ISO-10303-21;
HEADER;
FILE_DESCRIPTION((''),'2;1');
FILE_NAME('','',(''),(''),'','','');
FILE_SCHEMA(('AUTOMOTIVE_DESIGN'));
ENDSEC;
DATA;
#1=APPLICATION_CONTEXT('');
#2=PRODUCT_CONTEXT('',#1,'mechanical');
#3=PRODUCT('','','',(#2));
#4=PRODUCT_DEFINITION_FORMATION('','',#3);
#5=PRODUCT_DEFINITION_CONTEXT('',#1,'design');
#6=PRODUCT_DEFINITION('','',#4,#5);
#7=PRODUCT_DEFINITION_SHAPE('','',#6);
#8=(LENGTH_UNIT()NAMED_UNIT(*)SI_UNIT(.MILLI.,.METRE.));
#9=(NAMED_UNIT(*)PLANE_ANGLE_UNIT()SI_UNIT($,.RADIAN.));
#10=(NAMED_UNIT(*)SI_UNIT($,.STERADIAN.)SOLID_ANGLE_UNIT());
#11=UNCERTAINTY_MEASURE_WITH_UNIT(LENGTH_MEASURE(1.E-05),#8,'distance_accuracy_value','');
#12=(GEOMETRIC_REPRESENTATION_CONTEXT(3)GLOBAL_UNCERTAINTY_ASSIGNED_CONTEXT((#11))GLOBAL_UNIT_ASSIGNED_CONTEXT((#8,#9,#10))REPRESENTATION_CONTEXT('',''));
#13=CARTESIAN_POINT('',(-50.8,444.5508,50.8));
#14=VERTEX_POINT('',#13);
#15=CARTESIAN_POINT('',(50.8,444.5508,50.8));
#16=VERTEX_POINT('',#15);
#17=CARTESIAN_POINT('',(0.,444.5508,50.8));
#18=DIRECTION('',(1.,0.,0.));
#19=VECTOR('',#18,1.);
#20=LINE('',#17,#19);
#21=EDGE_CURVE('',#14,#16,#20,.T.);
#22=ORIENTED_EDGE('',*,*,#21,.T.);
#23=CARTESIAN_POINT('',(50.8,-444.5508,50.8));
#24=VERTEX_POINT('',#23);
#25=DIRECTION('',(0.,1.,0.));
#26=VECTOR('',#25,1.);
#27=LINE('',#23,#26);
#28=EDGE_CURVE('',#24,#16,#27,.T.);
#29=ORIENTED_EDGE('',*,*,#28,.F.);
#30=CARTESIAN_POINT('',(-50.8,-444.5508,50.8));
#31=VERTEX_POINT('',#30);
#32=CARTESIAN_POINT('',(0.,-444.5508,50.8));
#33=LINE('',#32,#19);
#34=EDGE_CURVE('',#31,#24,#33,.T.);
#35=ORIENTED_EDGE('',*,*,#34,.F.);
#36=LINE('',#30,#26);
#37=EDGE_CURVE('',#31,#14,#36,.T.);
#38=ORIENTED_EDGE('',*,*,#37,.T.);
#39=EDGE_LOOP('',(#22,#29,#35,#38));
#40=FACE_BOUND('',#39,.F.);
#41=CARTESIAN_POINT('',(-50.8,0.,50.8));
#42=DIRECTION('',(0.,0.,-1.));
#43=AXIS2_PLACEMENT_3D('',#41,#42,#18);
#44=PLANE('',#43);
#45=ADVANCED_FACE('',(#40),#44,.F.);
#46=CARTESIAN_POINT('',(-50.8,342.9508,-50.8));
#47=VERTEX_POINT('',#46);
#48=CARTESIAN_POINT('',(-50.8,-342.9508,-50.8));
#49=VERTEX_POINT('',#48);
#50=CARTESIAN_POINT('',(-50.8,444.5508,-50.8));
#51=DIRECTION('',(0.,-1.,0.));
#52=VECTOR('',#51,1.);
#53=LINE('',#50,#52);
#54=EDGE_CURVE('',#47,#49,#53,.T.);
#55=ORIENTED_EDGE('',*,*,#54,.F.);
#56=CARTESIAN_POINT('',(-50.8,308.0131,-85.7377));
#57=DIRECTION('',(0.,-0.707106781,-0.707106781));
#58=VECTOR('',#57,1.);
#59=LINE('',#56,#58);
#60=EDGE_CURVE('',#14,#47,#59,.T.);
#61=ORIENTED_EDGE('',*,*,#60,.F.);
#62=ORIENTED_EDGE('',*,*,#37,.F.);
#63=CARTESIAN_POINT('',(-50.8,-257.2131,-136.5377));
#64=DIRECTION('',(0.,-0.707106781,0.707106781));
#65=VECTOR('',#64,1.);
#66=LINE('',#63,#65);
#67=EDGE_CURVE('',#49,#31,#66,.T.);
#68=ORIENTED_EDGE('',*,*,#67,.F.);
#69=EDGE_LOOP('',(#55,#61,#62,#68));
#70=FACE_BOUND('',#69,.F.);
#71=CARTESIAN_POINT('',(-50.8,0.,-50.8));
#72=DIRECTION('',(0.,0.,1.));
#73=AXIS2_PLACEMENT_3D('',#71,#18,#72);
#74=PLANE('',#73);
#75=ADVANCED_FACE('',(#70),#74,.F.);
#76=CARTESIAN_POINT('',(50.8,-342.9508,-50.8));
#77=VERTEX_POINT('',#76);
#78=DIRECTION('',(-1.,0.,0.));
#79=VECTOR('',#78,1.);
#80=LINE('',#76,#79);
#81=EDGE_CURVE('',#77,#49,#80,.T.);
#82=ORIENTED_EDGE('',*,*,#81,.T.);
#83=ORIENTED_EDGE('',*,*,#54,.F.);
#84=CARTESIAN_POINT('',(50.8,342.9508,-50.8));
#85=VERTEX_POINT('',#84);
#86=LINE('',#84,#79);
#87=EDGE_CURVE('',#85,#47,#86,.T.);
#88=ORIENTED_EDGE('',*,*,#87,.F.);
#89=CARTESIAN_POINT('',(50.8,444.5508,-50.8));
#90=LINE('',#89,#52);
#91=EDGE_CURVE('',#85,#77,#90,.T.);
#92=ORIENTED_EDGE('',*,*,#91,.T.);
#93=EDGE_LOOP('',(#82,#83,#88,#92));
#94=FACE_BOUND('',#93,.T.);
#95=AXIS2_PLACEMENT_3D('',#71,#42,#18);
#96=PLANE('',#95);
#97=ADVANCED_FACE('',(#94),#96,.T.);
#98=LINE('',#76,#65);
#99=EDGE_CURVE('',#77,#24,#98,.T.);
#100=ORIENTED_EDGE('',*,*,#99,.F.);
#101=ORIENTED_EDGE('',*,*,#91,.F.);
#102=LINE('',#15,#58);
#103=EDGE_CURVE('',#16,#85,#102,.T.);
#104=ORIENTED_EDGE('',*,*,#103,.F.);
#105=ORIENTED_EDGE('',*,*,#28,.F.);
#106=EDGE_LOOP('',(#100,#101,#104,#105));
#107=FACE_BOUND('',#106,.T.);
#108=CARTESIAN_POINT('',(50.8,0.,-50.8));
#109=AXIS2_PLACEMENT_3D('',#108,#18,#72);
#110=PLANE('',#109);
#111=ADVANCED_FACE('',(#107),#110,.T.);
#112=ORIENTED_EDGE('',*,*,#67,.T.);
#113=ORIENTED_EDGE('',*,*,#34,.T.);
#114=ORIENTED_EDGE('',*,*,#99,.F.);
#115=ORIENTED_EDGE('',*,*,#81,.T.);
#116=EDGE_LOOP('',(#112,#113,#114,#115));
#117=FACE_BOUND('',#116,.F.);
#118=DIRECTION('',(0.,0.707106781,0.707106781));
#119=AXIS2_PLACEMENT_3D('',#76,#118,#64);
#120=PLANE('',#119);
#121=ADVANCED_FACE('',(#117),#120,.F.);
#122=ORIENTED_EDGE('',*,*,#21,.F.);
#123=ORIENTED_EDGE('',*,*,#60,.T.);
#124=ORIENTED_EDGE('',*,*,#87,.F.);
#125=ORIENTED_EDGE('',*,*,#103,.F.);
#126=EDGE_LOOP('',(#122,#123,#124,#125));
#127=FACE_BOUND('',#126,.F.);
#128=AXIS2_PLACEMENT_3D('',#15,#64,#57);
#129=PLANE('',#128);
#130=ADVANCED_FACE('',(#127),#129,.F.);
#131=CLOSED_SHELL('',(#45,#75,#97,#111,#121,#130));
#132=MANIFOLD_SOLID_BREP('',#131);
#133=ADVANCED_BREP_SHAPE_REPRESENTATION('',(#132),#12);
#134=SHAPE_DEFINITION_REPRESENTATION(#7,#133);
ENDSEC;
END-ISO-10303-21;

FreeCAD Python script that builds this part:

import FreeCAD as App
import Part
import Sketcher
from FreeCAD import Vector
Q = App.Units.Quantity

doc = App.newDocument("Part")
params = doc.addObject("Spreadsheet::Sheet", "Params")
for row, (alias, value) in enumerate([
    ("sketch1_width", "4 in"),
    ("pad1_length", "35.004 in"),
    ("sketch2_width", "4 in"),
], start=1):
    params.set(f"A{row}", alias)
    params.set(f"B{row}", "=" + value)
    params.setAlias(f"B{row}", alias)

body = doc.addObject("PartDesign::Body", "Body")

# Sketch on XZ plane
sketch1 = body.newObject("Sketcher::SketchObject", "Sketch")
sketch1.AttachmentSupport = (doc.getObject("XZ_Plane"), [""])
sketch1.MapMode = "FlatFace"
sketch1.addGeometry([
    Part.LineSegment(Vector(-51, 51, 0), Vector(-51, -51, 0)),
    Part.LineSegment(Vector(-51, -51, 0), Vector(51, -51, 0)),
    Part.LineSegment(Vector(51, -51, 0), Vector(51, 51, 0)),
    Part.LineSegment(Vector(51, 51, 0), Vector(-51, 51, 0)),
], False)
sketch1.addConstraint([
    Sketcher.Constraint("Coincident", 0, 2, 1, 1),
    Sketcher.Constraint("Coincident", 1, 2, 2, 1),
    Sketcher.Constraint("Coincident", 2, 2, 3, 1),
    Sketcher.Constraint("Coincident", 3, 2, 0, 1),
    Sketcher.Constraint("Vertical", 0),
    Sketcher.Constraint("Horizontal", 1),
    Sketcher.Constraint("Vertical", 2),
    Sketcher.Constraint("Horizontal", 3),
    Sketcher.Constraint("Symmetric", 0, 2, 2, 2, -1, 1),
    Sketcher.Constraint("Equal", 3, 0),
    Sketcher.Constraint("DistanceX", 1, 1, 1, 2, Q("4 in")),
])
sketch1.setExpression("Constraints[10]", "Params.sketch1_width")
pad1 = body.newObject("PartDesign::Pad", "Pad")
pad1.Profile = sketch1
pad1.setExpression("Length", "Params.pad1_length")
pad1.Midplane = True

# Sketch on YZ plane
sketch2 = body.newObject("Sketcher::SketchObject", "Sketch001")
sketch2.AttachmentSupport = (doc.getObject("YZ_Plane"), [""])
sketch2.MapMode = "FlatFace"
sketch2.AttachmentOffset = App.Placement(Vector(0, 0, 2 * 25.4), App.Rotation())
sketch2.addGeometry([
    Part.LineSegment(Vector(-445, 51, 0), Vector(-445, -51, 0)),  # 0
    Part.LineSegment(Vector(-445, -51, 0), Vector(-343, -51, 0)),  # 1
    Part.LineSegment(Vector(-343, -51, 0), Vector(-445, 51, 0)),  # 2
    Part.LineSegment(Vector(445, -51, 0), Vector(445, 51, 0)),  # 3
    Part.LineSegment(Vector(445, 51, 0), Vector(343, -51, 0)),  # 4
    Part.LineSegment(Vector(343, -51, 0), Vector(445, -51, 0)),  # 5
], False)
sketch2.addConstraint([
    Sketcher.Constraint("Coincident", 0, 2, 1, 1),
    Sketcher.Constraint("Coincident", 1, 2, 2, 1),
    Sketcher.Constraint("Coincident", 2, 2, 0, 1),
    Sketcher.Constraint("Coincident", 3, 2, 4, 1),
    Sketcher.Constraint("Coincident", 4, 2, 5, 1),
    Sketcher.Constraint("Coincident", 5, 2, 3, 1),
    Sketcher.Constraint("Vertical", 0),
    Sketcher.Constraint("Horizontal", 1),
    Sketcher.Constraint("Vertical", 3),
    Sketcher.Constraint("Horizontal", 5),
    Sketcher.Constraint("Symmetric", 0, 2, 3, 2, -1, 1),
    Sketcher.Constraint("Symmetric", 1, 2, 4, 2, -2),
    Sketcher.Constraint("Perpendicular", 2, 4),
    Sketcher.Constraint("Horizontal", 2, 2, 3, 2),
    Sketcher.Constraint("DistanceX", 1, 1, 1, 2, Q("4 in")),
    Sketcher.Constraint("DistanceX", 0, 2, -1, 1, Q("17.502 in")),
])
sketch2.setExpression("Constraints[14]", "Params.sketch2_width")
pocket1 = body.newObject("PartDesign::Pocket", "Pocket")
pocket1.Profile = sketch2
pocket1.Type = "ThroughAll"

doc.recompute()
